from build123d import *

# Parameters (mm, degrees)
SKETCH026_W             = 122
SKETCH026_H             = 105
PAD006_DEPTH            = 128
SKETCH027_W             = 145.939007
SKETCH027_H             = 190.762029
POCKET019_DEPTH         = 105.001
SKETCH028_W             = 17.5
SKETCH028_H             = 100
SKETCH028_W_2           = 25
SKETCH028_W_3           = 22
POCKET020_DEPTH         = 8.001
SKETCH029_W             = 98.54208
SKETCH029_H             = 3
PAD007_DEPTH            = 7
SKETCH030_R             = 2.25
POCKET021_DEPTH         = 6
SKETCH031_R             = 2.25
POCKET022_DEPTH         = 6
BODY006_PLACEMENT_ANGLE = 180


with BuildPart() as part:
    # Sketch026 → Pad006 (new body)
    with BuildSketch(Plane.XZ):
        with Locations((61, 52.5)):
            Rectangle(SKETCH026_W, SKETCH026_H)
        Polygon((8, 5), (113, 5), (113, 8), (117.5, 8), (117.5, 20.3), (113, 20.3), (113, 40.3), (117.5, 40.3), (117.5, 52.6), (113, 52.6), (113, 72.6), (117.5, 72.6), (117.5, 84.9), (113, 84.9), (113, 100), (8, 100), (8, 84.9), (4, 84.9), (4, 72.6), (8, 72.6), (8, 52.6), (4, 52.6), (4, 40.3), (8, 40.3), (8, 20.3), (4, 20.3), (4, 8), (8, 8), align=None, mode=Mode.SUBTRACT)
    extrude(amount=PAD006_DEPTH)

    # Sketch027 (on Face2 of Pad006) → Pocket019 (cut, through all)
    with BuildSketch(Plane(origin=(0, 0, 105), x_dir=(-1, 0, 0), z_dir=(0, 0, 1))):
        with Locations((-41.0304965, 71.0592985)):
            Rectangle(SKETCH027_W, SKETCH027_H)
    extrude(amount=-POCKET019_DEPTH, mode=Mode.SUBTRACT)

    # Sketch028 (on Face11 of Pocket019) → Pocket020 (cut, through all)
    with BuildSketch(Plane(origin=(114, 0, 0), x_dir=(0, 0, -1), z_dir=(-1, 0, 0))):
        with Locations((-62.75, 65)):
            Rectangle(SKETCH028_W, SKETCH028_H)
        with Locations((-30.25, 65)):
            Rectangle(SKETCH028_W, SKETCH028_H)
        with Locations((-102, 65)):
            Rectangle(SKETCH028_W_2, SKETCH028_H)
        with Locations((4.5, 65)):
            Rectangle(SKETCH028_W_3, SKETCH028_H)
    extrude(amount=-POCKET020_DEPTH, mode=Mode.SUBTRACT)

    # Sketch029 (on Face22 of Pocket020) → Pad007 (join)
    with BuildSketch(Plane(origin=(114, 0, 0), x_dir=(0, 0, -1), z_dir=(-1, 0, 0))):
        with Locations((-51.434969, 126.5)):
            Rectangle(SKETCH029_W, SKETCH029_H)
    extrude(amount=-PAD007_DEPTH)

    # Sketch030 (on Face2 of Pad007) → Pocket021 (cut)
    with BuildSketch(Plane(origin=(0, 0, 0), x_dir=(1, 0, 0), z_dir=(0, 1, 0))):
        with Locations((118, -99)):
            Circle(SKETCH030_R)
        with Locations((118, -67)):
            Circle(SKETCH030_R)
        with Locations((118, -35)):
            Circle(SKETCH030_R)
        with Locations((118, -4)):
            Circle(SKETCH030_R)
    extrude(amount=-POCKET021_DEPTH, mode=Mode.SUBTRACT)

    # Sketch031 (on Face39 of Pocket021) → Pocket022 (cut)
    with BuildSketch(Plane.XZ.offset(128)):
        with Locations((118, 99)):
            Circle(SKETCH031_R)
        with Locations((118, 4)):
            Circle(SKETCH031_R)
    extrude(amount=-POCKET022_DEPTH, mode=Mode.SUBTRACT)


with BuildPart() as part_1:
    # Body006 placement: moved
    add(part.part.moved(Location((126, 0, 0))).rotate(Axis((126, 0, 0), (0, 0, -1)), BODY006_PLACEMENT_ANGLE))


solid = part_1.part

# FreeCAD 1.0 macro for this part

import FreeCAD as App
import Part
import Sketcher
from FreeCAD import Vector


def add_polygon(sketch, points):
    """Adds a closed chain of lines whose ends are joined by coincident constraints."""
    first, n = sketch.GeometryCount, len(points)
    for a, b in zip(points, points[1:] + points[:1]):
        sketch.addGeometry(Part.LineSegment(App.Vector(*a, 0), App.Vector(*b, 0)), False)
    for i in range(n):
        sketch.addConstraint(Sketcher.Constraint("Coincident", first + i, 2, first + (i + 1) % n, 1))

doc = App.newDocument("Part")
body = doc.addObject("PartDesign::Body", "Body")

sketch1 = body.newObject("Sketcher::SketchObject", "Sketch")
sketch1.AttachmentSupport = (doc.getObject("XZ_Plane"), [""])
sketch1.MapMode = "FlatFace"
add_polygon(sketch1, [(0, 105), (0, 0), (122, 0), (122, 105)])
add_polygon(sketch1, [(113, 5), (8, 5), (8, 8), (4, 8), (4, 20.3), (8, 20.3), (8, 40.3), (4, 40.3), (4, 52.6), (8, 52.6), (8, 72.6), (4, 72.6), (4, 84.9), (8, 84.9), (8, 100), (113, 100), (113, 84.9), (117.5, 84.9), (117.5, 72.6), (113, 72.6), (113, 52.6), (117.5, 52.6), (117.5, 40.3), (113, 40.3), (113, 20.3), (117.5, 20.3), (117.5, 8), (113, 8)])
sketch1.addConstraint(Sketcher.Constraint("Vertical", 0))
sketch1.addConstraint(Sketcher.Constraint("Horizontal", 1))
sketch1.addConstraint(Sketcher.Constraint("Vertical", 2))
sketch1.addConstraint(Sketcher.Constraint("Horizontal", 3))
sketch1.addConstraint(Sketcher.Constraint("Horizontal", 4))
sketch1.addConstraint(Sketcher.Constraint("Vertical", 5))
sketch1.addConstraint(Sketcher.Constraint("Horizontal", 6))
sketch1.addConstraint(Sketcher.Constraint("Vertical", 7))
sketch1.addConstraint(Sketcher.Constraint("Horizontal", 8))
sketch1.addConstraint(Sketcher.Constraint("Vertical", 9))
sketch1.addConstraint(Sketcher.Constraint("Horizontal", 10))
sketch1.addConstraint(Sketcher.Constraint("Vertical", 11))
sketch1.addConstraint(Sketcher.Constraint("Horizontal", 12))
sketch1.addConstraint(Sketcher.Constraint("Vertical", 13))
sketch1.addConstraint(Sketcher.Constraint("Horizontal", 14))
sketch1.addConstraint(Sketcher.Constraint("Vertical", 15))
sketch1.addConstraint(Sketcher.Constraint("Horizontal", 16))
sketch1.addConstraint(Sketcher.Constraint("Vertical", 17))
sketch1.addConstraint(Sketcher.Constraint("Horizontal", 18))
sketch1.addConstraint(Sketcher.Constraint("Vertical", 19))
sketch1.addConstraint(Sketcher.Constraint("Horizontal", 20))
sketch1.addConstraint(Sketcher.Constraint("Vertical", 21))
sketch1.addConstraint(Sketcher.Constraint("Horizontal", 22))
sketch1.addConstraint(Sketcher.Constraint("Vertical", 23))
sketch1.addConstraint(Sketcher.Constraint("Horizontal", 24))
sketch1.addConstraint(Sketcher.Constraint("Vertical", 25))
sketch1.addConstraint(Sketcher.Constraint("Horizontal", 26))
sketch1.addConstraint(Sketcher.Constraint("Vertical", 27))
sketch1.addConstraint(Sketcher.Constraint("Horizontal", 28))
sketch1.addConstraint(Sketcher.Constraint("Vertical", 29))
sketch1.addConstraint(Sketcher.Constraint("Horizontal", 30))
sketch1.addConstraint(Sketcher.Constraint("Vertical", 31))
sketch1.addConstraint(Sketcher.Constraint("Coincident", 0, 2, -1, 1))
sketch1.addConstraint(Sketcher.Constraint("Horizontal", 16, 2, 19, 2))
sketch1.addConstraint(Sketcher.Constraint("Horizontal", 14, 2, 21, 2))
sketch1.addConstraint(Sketcher.Constraint("Horizontal", 12, 2, 23, 2))
sketch1.addConstraint(Sketcher.Constraint("Horizontal", 10, 2, 25, 2))
sketch1.addConstraint(Sketcher.Constraint("Horizontal", 8, 2, 27, 2))
sketch1.addConstraint(Sketcher.Constraint("Horizontal", 6, 2, 29, 2))
sketch1.addConstraint(Sketcher.Constraint("Vertical", 5, 2, 8, 2))
sketch1.addConstraint(Sketcher.Constraint("Vertical", 7, 2, 10, 2))
sketch1.addConstraint(Sketcher.Constraint("Vertical", 9, 2, 12, 2))
sketch1.addConstraint(Sketcher.Constraint("Vertical", 11, 2, 14, 2))
sketch1.addConstraint(Sketcher.Constraint("Vertical", 13, 2, 16, 2))
sketch1.addConstraint(Sketcher.Constraint("Vertical", 19, 2, 22, 2))
sketch1.addConstraint(Sketcher.Constraint("Vertical", 21, 2, 24, 2))
sketch1.addConstraint(Sketcher.Constraint("Vertical", 23, 2, 26, 2))
sketch1.addConstraint(Sketcher.Constraint("Vertical", 25, 2, 28, 2))
sketch1.addConstraint(Sketcher.Constraint("Vertical", 27, 2, 30, 2))
sketch1.addConstraint(Sketcher.Constraint("Equal", 18, 0))
sketch1.addConstraint(Sketcher.Constraint("Equal", 7, 11))
sketch1.addConstraint(Sketcher.Constraint("Equal", 9, 13))
sketch1.addConstraint(Sketcher.Constraint("Equal", 11, 15))
sketch1.addConstraint(Sketcher.Constraint("DistanceX", 1, 1, 1, 2, 122.0))
sketch1.addConstraint(Sketcher.Constraint("DistanceX", 4, 2, 4, 1, 105.0))
sketch1.addConstraint(Sketcher.Constraint("DistanceX", 6, 2, 6, 1, 4.0))
sketch1.addConstraint(Sketcher.Constraint("DistanceY", 5, 1, 5, 2, 3.0))
sketch1.addConstraint(Sketcher.Constraint("DistanceY", 9, 1, 9, 2, 20.0))
sketch1.addConstraint(Sketcher.Constraint("DistanceX", 20, 1, 20, 2, 4.5))
sketch1.addConstraint(Sketcher.Constraint("DistanceY", 7, 1, 7, 2, 12.3))
sketch1.addConstraint(Sketcher.Constraint("DistanceY", 17, 1, 17, 2, 15.1))
sketch1.addConstraint(Sketcher.Constraint("DistanceX", -1, 1, 4, 2, 8.0))
sketch1.addConstraint(Sketcher.Constraint("DistanceY", -1, 1, 4, 2, 5.0))
pad1 = body.newObject("PartDesign::Pad", "Pad")
pad1.Profile = sketch1
pad1.Length = 128

sketch2 = body.newObject("Sketcher::SketchObject", "Sketch001")
sketch2.AttachmentSupport = (doc.getObject("XY_Plane"), [""])
sketch2.MapMode = "FlatFace"
sketch2.AttachmentOffset = App.Placement(Vector(0, 0, 105), App.Rotation())
add_polygon(sketch2, [(114, -166), (114, 24), (-32, 24), (-32, -166)])
sketch2.addConstraint(Sketcher.Constraint("Vertical", 0))
sketch2.addConstraint(Sketcher.Constraint("Horizontal", 1))
sketch2.addConstraint(Sketcher.Constraint("Vertical", 2))
sketch2.addConstraint(Sketcher.Constraint("Horizontal", 3))
sketch2.addConstraint(Sketcher.Constraint("DistanceX", -1, 1, 0, 2, 114.0))
sketch2.addConstraint(Sketcher.Constraint("DistanceY", 0, 1, 0, 2, 190.762029))
sketch2.addConstraint(Sketcher.Constraint("DistanceX", 1, 2, 1, 1, 145.939007))
sketch2.addConstraint(Sketcher.Constraint("DistanceY", -1, 1, 0, 2, 24.321716))
pocket1 = body.newObject("PartDesign::Pocket", "Pocket")
pocket1.Profile = sketch2
pocket1.Type = "ThroughAll"

sketch3 = body.newObject("Sketcher::SketchObject", "Sketch002")
sketch3.AttachmentSupport = (doc.getObject("YZ_Plane"), [""])
sketch3.MapMode = "FlatFace"
sketch3.AttachmentOffset = App.Placement(Vector(0, 0, 114), App.Rotation())
add_polygon(sketch3, [(-115, 72), (-15, 72), (-15, 54), (-115, 54)])
add_polygon(sketch3, [(-115, 39), (-15, 39), (-15, 22), (-115, 22)])
add_polygon(sketch3, [(-115, 114), (-15, 114), (-15, 90), (-115, 90)])
add_polygon(sketch3, [(-115, 6), (-15, 6), (-15, -16), (-115, -16)])
sketch3.addConstraint(Sketcher.Constraint("Horizontal", 0))
sketch3.addConstraint(Sketcher.Constraint("Vertical", 1))
sketch3.addConstraint(Sketcher.Constraint("Horizontal", 2))
sketch3.addConstraint(Sketcher.Constraint("Vertical", 3))
sketch3.addConstraint(Sketcher.Constraint("Horizontal", 4))
sketch3.addConstraint(Sketcher.Constraint("Vertical", 5))
sketch3.addConstraint(Sketcher.Constraint("Horizontal", 6))
sketch3.addConstraint(Sketcher.Constraint("Vertical", 7))
sketch3.addConstraint(Sketcher.Constraint("Horizontal", 8))
sketch3.addConstraint(Sketcher.Constraint("Vertical", 9))
sketch3.addConstraint(Sketcher.Constraint("Horizontal", 10))
sketch3.addConstraint(Sketcher.Constraint("Vertical", 11))
sketch3.addConstraint(Sketcher.Constraint("Horizontal", 12))
sketch3.addConstraint(Sketcher.Constraint("Vertical", 13))
sketch3.addConstraint(Sketcher.Constraint("Horizontal", 14))
sketch3.addConstraint(Sketcher.Constraint("Vertical", 15))
sketch3.addConstraint(Sketcher.Constraint("Vertical", 1, 2, 4, 2))
sketch3.addConstraint(Sketcher.Constraint("Vertical", 3, 2, 6, 2))
sketch3.addConstraint(Sketcher.Constraint("Vertical", 5, 2, 8, 2))
sketch3.addConstraint(Sketcher.Constraint("Vertical", 7, 2, 10, 2))
sketch3.addConstraint(Sketcher.Constraint("Vertical", 9, 2, 12, 2))
sketch3.addConstraint(Sketcher.Constraint("Vertical", 11, 2, 14, 2))
sketch3.addConstraint(Sketcher.Constraint("Equal", 3, 5))
sketch3.addConstraint(Sketcher.Constraint("DistanceX", 0, 1, 0, 2, 100.0))
sketch3.addConstraint(Sketcher.Constraint("DistanceY", 9, 2, 9, 1, 25.0))
sketch3.addConstraint(Sketcher.Constraint("DistanceY", 13, 2, 13, 1, 22.0))
sketch3.addConstraint(Sketcher.Constraint("DistanceY", 1, 2, 1, 1, 17.5))
sketch3.addConstraint(Sketcher.Constraint("DistanceX", 0, 2, -1, 1, 15.0))
sketch3.addConstraint(Sketcher.Constraint("DistanceY", -1, 1, 1, 2, 54.0))
sketch3.addConstraint(Sketcher.Constraint("DistanceY", -1, 1, 4, 2, 39.0))
sketch3.addConstraint(Sketcher.Constraint("DistanceY", 0, 2, 8, 2, 43.0))
sketch3.addConstraint(Sketcher.Constraint("DistanceY", 12, 2, 5, 2, 15.0))
pocket2 = body.newObject("PartDesign::Pocket", "Pocket001")
pocket2.Profile = sketch3
pocket2.Type = "ThroughAll"
pocket2.Reversed = True

sketch4 = body.newObject("Sketcher::SketchObject", "Sketch003")
sketch4.AttachmentSupport = (doc.getObject("YZ_Plane"), [""])
sketch4.MapMode = "FlatFace"
sketch4.AttachmentOffset = App.Placement(Vector(0, 0, 114), App.Rotation())
add_polygon(sketch4, [(-128, 100.7), (-125, 100.7), (-125, 2.2), (-128, 2.2)])
sketch4.addConstraint(Sketcher.Constraint("Horizontal", 0))
sketch4.addConstraint(Sketcher.Constraint("Vertical", 1))
sketch4.addConstraint(Sketcher.Constraint("Horizontal", 2))
sketch4.addConstraint(Sketcher.Constraint("Vertical", 3))
sketch4.addConstraint(Sketcher.Constraint("DistanceX", 0, 1, 0, 2, 3.0))
sketch4.addConstraint(Sketcher.Constraint("DistanceX", 0, 2, -1, 1, 125.0))
sketch4.addConstraint(Sketcher.Constraint("DistanceY", 1, 2, 1, 1, 98.54208))
sketch4.addConstraint(Sketcher.Constraint("DistanceY", -1, 1, 0, 2, 100.706009))
pad2 = body.newObject("PartDesign::Pad", "Pad001")
pad2.Profile = sketch4
pad2.Length = 7

sketch5 = body.newObject("Sketcher::SketchObject", "Sketch004")
sketch5.AttachmentSupport = (doc.getObject("XZ_Plane"), [""])
sketch5.MapMode = "FlatFace"
sketch5.addGeometry(Part.Circle(Vector(118, 99, 0), Vector(0, 0, 1), 2.2), False)
sketch5.addGeometry(Part.Circle(Vector(118, 67, 0), Vector(0, 0, 1), 2.2), False)
sketch5.addGeometry(Part.Circle(Vector(118, 35, 0), Vector(0, 0, 1), 2.2), False)
sketch5.addGeometry(Part.Circle(Vector(118, 4, 0), Vector(0, 0, 1), 2.2), False)
sketch5.addConstraint(Sketcher.Constraint("Equal", 0, 1))
sketch5.addConstraint(Sketcher.Constraint("Equal", 1, 2))
sketch5.addConstraint(Sketcher.Constraint("Equal", 2, 3))
sketch5.addConstraint(Sketcher.Constraint("Vertical", 0, 3, 1, 3))
sketch5.addConstraint(Sketcher.Constraint("Vertical", 1, 3, 2, 3))
sketch5.addConstraint(Sketcher.Constraint("Vertical", 2, 3, 3, 3))
sketch5.addConstraint(Sketcher.Constraint("Diameter", 0, 4.5))
sketch5.addConstraint(Sketcher.Constraint("DistanceX", -1, 1, 0, 3, 118.0))
sketch5.addConstraint(Sketcher.Constraint("DistanceY", -1, 1, 0, 3, 99.0))
sketch5.addConstraint(Sketcher.Constraint("DistanceY", -1, 1, 1, 3, 67.0))
sketch5.addConstraint(Sketcher.Constraint("DistanceY", -1, 1, 2, 3, 35.0))
sketch5.addConstraint(Sketcher.Constraint("DistanceY", -1, 1, 3, 3, 4.0))
pocket3 = body.newObject("PartDesign::Pocket", "Pocket002")
pocket3.Profile = sketch5
pocket3.Length = 6
pocket3.Reversed = True

sketch6 = body.newObject("Sketcher::SketchObject", "Sketch005")
sketch6.AttachmentSupport = (doc.getObject("XZ_Plane"), [""])
sketch6.MapMode = "FlatFace"
sketch6.AttachmentOffset = App.Placement(Vector(0, 0, 128), App.Rotation())
sketch6.addGeometry(Part.Circle(Vector(118, 99, 0), Vector(0, 0, 1), 2.2), False)
sketch6.addGeometry(Part.Circle(Vector(118, 4, 0), Vector(0, 0, 1), 2.2), False)
sketch6.addConstraint(Sketcher.Constraint("Equal", 0, 1))
sketch6.addConstraint(Sketcher.Constraint("Vertical", 0, 3, 1, 3))
sketch6.addConstraint(Sketcher.Constraint("Diameter", 0, 4.5))
sketch6.addConstraint(Sketcher.Constraint("DistanceX", -1, 1, 0, 3, 118.0))
sketch6.addConstraint(Sketcher.Constraint("DistanceY", -1, 1, 0, 3, 99.0))
sketch6.addConstraint(Sketcher.Constraint("DistanceY", -1, 1, 1, 3, 4.0))
pocket4 = body.newObject("PartDesign::Pocket", "Pocket003")
pocket4.Profile = sketch6
pocket4.Length = 6
body2 = doc.addObject("PartDesign::Body", "Body001")
doc.recompute()

body.Placement = App.Placement(Vector(126, 0, 0), App.Rotation(Vector(0, 0, -1), 180))
boolean = body2.newObject("PartDesign::Boolean", "Boolean")
boolean.Type = "Fuse"
boolean.addObjects([body])

doc.recompute()
